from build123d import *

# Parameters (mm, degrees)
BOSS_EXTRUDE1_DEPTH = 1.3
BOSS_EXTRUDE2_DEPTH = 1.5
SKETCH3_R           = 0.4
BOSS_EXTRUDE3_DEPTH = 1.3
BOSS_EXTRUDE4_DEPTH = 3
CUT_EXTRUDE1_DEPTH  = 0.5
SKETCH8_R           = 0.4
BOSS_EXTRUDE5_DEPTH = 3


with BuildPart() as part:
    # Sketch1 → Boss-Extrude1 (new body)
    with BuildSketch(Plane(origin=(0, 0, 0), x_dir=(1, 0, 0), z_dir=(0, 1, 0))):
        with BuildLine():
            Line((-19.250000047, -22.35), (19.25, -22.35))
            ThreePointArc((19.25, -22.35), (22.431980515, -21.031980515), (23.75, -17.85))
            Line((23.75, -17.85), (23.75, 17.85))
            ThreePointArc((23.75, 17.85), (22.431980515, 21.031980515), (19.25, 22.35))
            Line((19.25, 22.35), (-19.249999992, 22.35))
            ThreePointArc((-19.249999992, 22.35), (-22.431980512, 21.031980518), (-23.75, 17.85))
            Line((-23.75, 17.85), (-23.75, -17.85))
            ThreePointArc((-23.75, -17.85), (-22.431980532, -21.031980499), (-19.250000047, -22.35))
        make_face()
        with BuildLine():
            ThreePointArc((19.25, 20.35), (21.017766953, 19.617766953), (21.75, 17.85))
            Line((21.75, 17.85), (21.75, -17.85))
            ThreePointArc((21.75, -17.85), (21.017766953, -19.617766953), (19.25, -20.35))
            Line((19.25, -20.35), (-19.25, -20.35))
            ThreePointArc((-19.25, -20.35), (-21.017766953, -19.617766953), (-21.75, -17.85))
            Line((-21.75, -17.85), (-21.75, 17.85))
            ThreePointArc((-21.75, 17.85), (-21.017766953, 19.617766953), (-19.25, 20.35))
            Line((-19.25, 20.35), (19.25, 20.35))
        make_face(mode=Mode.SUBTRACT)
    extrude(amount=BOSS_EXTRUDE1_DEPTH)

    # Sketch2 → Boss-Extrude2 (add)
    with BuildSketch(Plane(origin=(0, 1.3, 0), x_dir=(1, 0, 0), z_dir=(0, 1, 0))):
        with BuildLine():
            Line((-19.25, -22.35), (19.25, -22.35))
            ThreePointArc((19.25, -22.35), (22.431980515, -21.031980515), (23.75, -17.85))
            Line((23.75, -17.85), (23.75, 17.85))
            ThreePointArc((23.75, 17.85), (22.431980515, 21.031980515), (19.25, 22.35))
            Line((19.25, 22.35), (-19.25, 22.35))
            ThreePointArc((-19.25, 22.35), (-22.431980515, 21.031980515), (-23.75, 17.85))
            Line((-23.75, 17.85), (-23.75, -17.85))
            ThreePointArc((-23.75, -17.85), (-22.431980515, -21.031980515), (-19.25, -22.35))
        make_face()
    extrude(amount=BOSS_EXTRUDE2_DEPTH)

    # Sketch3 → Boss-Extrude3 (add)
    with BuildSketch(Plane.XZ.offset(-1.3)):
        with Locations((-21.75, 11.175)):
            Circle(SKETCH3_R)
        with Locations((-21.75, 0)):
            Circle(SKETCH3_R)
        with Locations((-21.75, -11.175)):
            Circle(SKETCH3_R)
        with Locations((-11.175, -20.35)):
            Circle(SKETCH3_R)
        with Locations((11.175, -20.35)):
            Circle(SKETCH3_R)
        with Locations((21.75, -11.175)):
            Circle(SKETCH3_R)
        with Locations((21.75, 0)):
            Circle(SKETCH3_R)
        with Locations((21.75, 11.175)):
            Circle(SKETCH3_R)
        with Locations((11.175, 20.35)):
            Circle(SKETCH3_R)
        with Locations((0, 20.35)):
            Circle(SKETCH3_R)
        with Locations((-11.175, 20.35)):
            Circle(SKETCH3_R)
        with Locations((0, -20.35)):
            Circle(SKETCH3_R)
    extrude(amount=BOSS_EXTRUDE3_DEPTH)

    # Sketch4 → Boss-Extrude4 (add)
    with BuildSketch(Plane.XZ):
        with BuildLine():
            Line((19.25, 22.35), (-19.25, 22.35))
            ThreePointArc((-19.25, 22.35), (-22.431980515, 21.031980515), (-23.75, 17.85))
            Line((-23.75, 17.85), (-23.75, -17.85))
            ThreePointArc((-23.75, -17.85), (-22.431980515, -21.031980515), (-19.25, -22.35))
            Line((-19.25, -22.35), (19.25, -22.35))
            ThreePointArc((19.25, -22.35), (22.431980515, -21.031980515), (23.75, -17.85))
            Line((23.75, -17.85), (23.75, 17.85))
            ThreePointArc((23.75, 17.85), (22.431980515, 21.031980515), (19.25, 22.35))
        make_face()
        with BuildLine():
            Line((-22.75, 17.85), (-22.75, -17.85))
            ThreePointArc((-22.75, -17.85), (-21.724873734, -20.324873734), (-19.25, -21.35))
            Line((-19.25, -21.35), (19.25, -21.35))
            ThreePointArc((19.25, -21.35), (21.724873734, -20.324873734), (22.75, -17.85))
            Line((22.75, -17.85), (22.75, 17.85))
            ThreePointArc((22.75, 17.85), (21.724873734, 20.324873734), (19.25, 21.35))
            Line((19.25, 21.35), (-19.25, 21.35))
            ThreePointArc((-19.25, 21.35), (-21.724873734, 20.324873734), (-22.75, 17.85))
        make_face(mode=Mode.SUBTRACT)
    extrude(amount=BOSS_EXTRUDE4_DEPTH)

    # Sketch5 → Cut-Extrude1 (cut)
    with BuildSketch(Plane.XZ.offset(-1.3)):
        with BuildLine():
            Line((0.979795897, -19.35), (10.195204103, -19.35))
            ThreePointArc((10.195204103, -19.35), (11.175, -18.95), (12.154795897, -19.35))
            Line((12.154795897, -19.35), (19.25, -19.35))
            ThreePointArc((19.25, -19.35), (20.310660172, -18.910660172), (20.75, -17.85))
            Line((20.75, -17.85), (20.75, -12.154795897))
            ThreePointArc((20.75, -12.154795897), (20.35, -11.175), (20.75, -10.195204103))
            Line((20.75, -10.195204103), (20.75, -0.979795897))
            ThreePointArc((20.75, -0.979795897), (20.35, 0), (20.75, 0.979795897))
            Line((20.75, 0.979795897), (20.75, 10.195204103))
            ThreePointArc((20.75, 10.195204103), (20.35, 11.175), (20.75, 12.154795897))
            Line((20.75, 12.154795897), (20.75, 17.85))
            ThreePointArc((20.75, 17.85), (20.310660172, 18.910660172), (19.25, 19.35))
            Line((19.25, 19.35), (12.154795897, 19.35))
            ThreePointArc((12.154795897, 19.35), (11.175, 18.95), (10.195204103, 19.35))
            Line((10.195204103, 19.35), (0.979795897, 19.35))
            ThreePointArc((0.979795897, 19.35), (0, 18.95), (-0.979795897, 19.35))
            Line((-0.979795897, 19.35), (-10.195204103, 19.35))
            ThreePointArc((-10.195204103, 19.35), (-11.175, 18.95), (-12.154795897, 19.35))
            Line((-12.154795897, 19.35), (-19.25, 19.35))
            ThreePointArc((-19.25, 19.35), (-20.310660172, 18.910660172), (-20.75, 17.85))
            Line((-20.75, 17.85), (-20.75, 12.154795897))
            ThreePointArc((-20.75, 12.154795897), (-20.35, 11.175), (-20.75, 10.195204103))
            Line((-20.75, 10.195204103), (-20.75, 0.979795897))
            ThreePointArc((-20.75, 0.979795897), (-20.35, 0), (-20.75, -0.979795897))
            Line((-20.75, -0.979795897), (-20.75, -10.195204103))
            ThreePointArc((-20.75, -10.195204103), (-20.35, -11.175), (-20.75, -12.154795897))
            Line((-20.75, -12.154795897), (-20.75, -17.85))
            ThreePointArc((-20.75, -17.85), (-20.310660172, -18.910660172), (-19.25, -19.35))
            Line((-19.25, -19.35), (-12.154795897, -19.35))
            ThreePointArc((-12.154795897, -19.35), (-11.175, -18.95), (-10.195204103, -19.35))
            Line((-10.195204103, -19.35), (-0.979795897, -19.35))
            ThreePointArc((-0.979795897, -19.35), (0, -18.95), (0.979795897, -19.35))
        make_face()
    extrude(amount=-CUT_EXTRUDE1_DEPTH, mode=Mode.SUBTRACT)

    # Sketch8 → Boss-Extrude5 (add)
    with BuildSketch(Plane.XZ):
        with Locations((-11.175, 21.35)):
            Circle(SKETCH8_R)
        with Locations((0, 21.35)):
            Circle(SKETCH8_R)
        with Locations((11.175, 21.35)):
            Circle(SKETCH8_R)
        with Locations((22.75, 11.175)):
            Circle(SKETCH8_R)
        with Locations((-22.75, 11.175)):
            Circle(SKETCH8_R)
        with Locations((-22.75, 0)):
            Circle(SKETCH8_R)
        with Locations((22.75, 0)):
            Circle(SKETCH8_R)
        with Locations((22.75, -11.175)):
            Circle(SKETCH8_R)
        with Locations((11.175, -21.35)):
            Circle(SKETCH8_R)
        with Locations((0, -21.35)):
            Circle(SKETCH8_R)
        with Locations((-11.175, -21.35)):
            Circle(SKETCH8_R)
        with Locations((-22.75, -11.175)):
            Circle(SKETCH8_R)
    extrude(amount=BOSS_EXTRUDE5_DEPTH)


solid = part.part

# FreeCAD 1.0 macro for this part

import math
import FreeCAD as App
import Part
import Sketcher

V = App.Vector
Q = App.Units.Quantity

doc = App.newDocument("Part")
params = doc.addObject("Spreadsheet::Sheet", "Params")
for row, (alias, value) in enumerate([
    ("sketch1_radius", "4.5 mm"),
    ("sketch1_radius2", "2.5 mm"),
    ("sketch1_width", "38.5 mm"),
    ("sketch1_height", "35.7 mm"),
    ("pad1_length", "1.3 mm"),
    ("sketch2_radius", "4.5 mm"),
    ("sketch2_width", "38.5 mm"),
    ("sketch2_height", "35.7 mm"),
    ("pad2_length", "1.5 mm"),
    ("sketch3_diameter", "0.8 mm"),
    ("pad3_length", "1.3 mm"),
    ("sketch4_radius", "4.5 mm"),
    ("sketch4_radius2", "3.5 mm"),
    ("sketch4_width", "38.5 mm"),
    ("sketch4_height", "35.7 mm"),
    ("pad4_length", "3 mm"),
    ("sketch5_radius", "1.4 mm"),
    ("sketch5_radius2", "1.5 mm"),
    ("pocket1_length", "0.5 mm"),
    ("sketch6_diameter", "0.8 mm"),
    ("pad5_length", "3 mm"),
], start=1):
    params.set(f"A{row}", alias)
    params.set(f"B{row}", "=" + value)
    params.setAlias(f"B{row}", alias)

body = doc.addObject("PartDesign::Body", "Body")

# Sketch on XZ plane
sketch1 = body.newObject("Sketcher::SketchObject", "Sketch")
sketch1.AttachmentSupport = (doc.getObject("XZ_Plane"), [""])
sketch1.MapMode = "FlatFace"
sketch1.addGeometry(Part.LineSegment(V(-19.25, 22.35, 0), V(19.25, 22.35, 0)), False)
sketch1.addGeometry(Part.ArcOfCircle(Part.Circle(V(19.25, 17.85, 0), V(0, 0, 1), 4.5), math.radians(0), math.radians(90)), False)
sketch1.addGeometry(Part.LineSegment(V(23.75, 17.85, 0), V(23.75, -17.85, 0)), False)
sketch1.addGeometry(Part.ArcOfCircle(Part.Circle(V(19.25, -17.85, 0), V(0, 0, 1), 4.5), math.radians(-90), math.radians(0)), False)
sketch1.addGeometry(Part.LineSegment(V(19.25, -22.35, 0), V(-19.25, -22.35, 0)), False)
sketch1.addGeometry(Part.ArcOfCircle(Part.Circle(V(-19.25, -17.85, 0), V(0, 0, 1), 4.5), math.radians(-180), math.radians(-90)), False)
sketch1.addGeometry(Part.LineSegment(V(-23.75, -17.85, 0), V(-23.75, 17.85, 0)), False)
sketch1.addGeometry(Part.ArcOfCircle(Part.Circle(V(-19.25, 17.85, 0), V(0, 0, 1), 4.5), math.radians(90.000001), math.radians(180)), False)
sketch1.addGeometry(Part.LineSegment(V(-19.25, -20.35, 0), V(19.25, -20.35, 0)), False)
sketch1.addGeometry(Part.ArcOfCircle(Part.Circle(V(19.25, -17.85, 0), V(0, 0, 1), 2.5), math.radians(-90), math.radians(0)), False)
sketch1.addGeometry(Part.LineSegment(V(21.75, -17.85, 0), V(21.75, 17.85, 0)), False)
sketch1.addGeometry(Part.ArcOfCircle(Part.Circle(V(19.25, 17.85, 0), V(0, 0, 1), 2.5), math.radians(0), math.radians(90)), False)
sketch1.addGeometry(Part.LineSegment(V(19.25, 20.35, 0), V(-19.25, 20.35, 0)), False)
sketch1.addGeometry(Part.ArcOfCircle(Part.Circle(V(-19.25, 17.85, 0), V(0, 0, 1), 2.5), math.radians(90), math.radians(180)), False)
sketch1.addGeometry(Part.LineSegment(V(-21.75, 17.85, 0), V(-21.75, -17.85, 0)), False)
sketch1.addGeometry(Part.ArcOfCircle(Part.Circle(V(-19.25, -17.85, 0), V(0, 0, 1), 2.5), math.radians(180), math.radians(270)), False)
sketch1.addConstraint(Sketcher.Constraint("Tangent", 0, 2, 1, 2))
sketch1.addConstraint(Sketcher.Constraint("Tangent", 1, 1, 2, 1))
sketch1.addConstraint(Sketcher.Constraint("Tangent", 2, 2, 3, 2))
sketch1.addConstraint(Sketcher.Constraint("Tangent", 3, 1, 4, 1))
sketch1.addConstraint(Sketcher.Constraint("Tangent", 4, 2, 5, 2))
sketch1.addConstraint(Sketcher.Constraint("Tangent", 5, 1, 6, 1))
sketch1.addConstraint(Sketcher.Constraint("Tangent", 6, 2, 7, 2))
sketch1.addConstraint(Sketcher.Constraint("Tangent", 7, 1, 0, 1))
sketch1.addConstraint(Sketcher.Constraint("Tangent", 8, 2, 9, 1))
sketch1.addConstraint(Sketcher.Constraint("Tangent", 9, 2, 10, 1))
sketch1.addConstraint(Sketcher.Constraint("Tangent", 10, 2, 11, 1))
sketch1.addConstraint(Sketcher.Constraint("Tangent", 11, 2, 12, 1))
sketch1.addConstraint(Sketcher.Constraint("Tangent", 12, 2, 13, 1))
sketch1.addConstraint(Sketcher.Constraint("Tangent", 13, 2, 14, 1))
sketch1.addConstraint(Sketcher.Constraint("Tangent", 14, 2, 15, 1))
sketch1.addConstraint(Sketcher.Constraint("Tangent", 15, 2, 8, 1))
sketch1.addConstraint(Sketcher.Constraint("Horizontal", 0))
sketch1.addConstraint(Sketcher.Constraint("Vertical", 2))
sketch1.addConstraint(Sketcher.Constraint("Horizontal", 4))
sketch1.addConstraint(Sketcher.Constraint("Vertical", 6))
sketch1.addConstraint(Sketcher.Constraint("Horizontal", 8))
sketch1.addConstraint(Sketcher.Constraint("Vertical", 10))
sketch1.addConstraint(Sketcher.Constraint("Horizontal", 12))
sketch1.addConstraint(Sketcher.Constraint("Vertical", 14))
sketch1.addConstraint(Sketcher.Constraint("Coincident", 9, 3, 3, 3))
sketch1.addConstraint(Sketcher.Constraint("Coincident", 11, 3, 1, 3))
sketch1.addConstraint(Sketcher.Constraint("Coincident", 13, 3, 7, 3))
sketch1.addConstraint(Sketcher.Constraint("Equal", 1, 3))
sketch1.addConstraint(Sketcher.Constraint("Equal", 3, 5))
sketch1.addConstraint(Sketcher.Constraint("Equal", 5, 7))
sketch1.addConstraint(Sketcher.Constraint("Equal", 13, 15))
sketch1.addConstraint(Sketcher.Constraint("Symmetric", 1, 3, 5, 3, -1, 1))
sketch1.addConstraint(Sketcher.Constraint("Radius", 1, Q("4.5 mm")))
sketch1.addConstraint(Sketcher.Constraint("Radius", 9, Q("2.5 mm")))
sketch1.addConstraint(Sketcher.Constraint("DistanceX", 0, 1, 0, 2, Q("38.5 mm")))
sketch1.addConstraint(Sketcher.Constraint("DistanceY", 2, 2, 2, 1, Q("35.7 mm")))
sketch1.setExpression("Constraints[32]", "Params.sketch1_radius")
sketch1.setExpression("Constraints[33]", "Params.sketch1_radius2")
sketch1.setExpression("Constraints[34]", "Params.sketch1_width")
sketch1.setExpression("Constraints[35]", "Params.sketch1_height")
pad1 = body.newObject("PartDesign::Pad", "Pad")
pad1.Profile = sketch1
pad1.setExpression("Length", "Params.pad1_length")
pad1.Reversed = True

# Sketch on XZ plane
sketch2 = body.newObject("Sketcher::SketchObject", "Sketch001")
sketch2.AttachmentSupport = (doc.getObject("XZ_Plane"), [""])
sketch2.MapMode = "FlatFace"
sketch2.AttachmentOffset = App.Placement(V(0, 0, -1.3), App.Rotation())
sketch2.addGeometry(Part.LineSegment(V(-19.25, 22.35, 0), V(19.25, 22.35, 0)), False)
sketch2.addGeometry(Part.ArcOfCircle(Part.Circle(V(19.25, 17.85, 0), V(0, 0, 1), 4.5), math.radians(0), math.radians(90)), False)
sketch2.addGeometry(Part.LineSegment(V(23.75, 17.85, 0), V(23.75, -17.85, 0)), False)
sketch2.addGeometry(Part.ArcOfCircle(Part.Circle(V(19.25, -17.85, 0), V(0, 0, 1), 4.5), math.radians(-90), math.radians(0)), False)
sketch2.addGeometry(Part.LineSegment(V(19.25, -22.35, 0), V(-19.25, -22.35, 0)), False)
sketch2.addGeometry(Part.ArcOfCircle(Part.Circle(V(-19.25, -17.85, 0), V(0, 0, 1), 4.5), math.radians(-180), math.radians(-90)), False)
sketch2.addGeometry(Part.LineSegment(V(-23.75, -17.85, 0), V(-23.75, 17.85, 0)), False)
sketch2.addGeometry(Part.ArcOfCircle(Part.Circle(V(-19.25, 17.85, 0), V(0, 0, 1), 4.5), math.radians(90), math.radians(180)), False)
sketch2.addConstraint(Sketcher.Constraint("Tangent", 0, 2, 1, 2))
sketch2.addConstraint(Sketcher.Constraint("Tangent", 1, 1, 2, 1))
sketch2.addConstraint(Sketcher.Constraint("Tangent", 2, 2, 3, 2))
sketch2.addConstraint(Sketcher.Constraint("Tangent", 3, 1, 4, 1))
sketch2.addConstraint(Sketcher.Constraint("Tangent", 4, 2, 5, 2))
sketch2.addConstraint(Sketcher.Constraint("Tangent", 5, 1, 6, 1))
sketch2.addConstraint(Sketcher.Constraint("Tangent", 6, 2, 7, 2))
sketch2.addConstraint(Sketcher.Constraint("Tangent", 7, 1, 0, 1))
sketch2.addConstraint(Sketcher.Constraint("Horizontal", 0))
sketch2.addConstraint(Sketcher.Constraint("Vertical", 2))
sketch2.addConstraint(Sketcher.Constraint("Horizontal", 4))
sketch2.addConstraint(Sketcher.Constraint("Vertical", 6))
sketch2.addConstraint(Sketcher.Constraint("Equal", 1, 3))
sketch2.addConstraint(Sketcher.Constraint("Equal", 3, 5))
sketch2.addConstraint(Sketcher.Constraint("Equal", 5, 7))
sketch2.addConstraint(Sketcher.Constraint("Symmetric", 1, 3, 5, 3, -1, 1))
sketch2.addConstraint(Sketcher.Constraint("Radius", 1, Q("4.5 mm")))
sketch2.addConstraint(Sketcher.Constraint("DistanceX", 0, 1, 0, 2, Q("38.5 mm")))
sketch2.addConstraint(Sketcher.Constraint("DistanceY", 2, 2, 2, 1, Q("35.7 mm")))
sketch2.setExpression("Constraints[16]", "Params.sketch2_radius")
sketch2.setExpression("Constraints[17]", "Params.sketch2_width")
sketch2.setExpression("Constraints[18]", "Params.sketch2_height")
pad2 = body.newObject("PartDesign::Pad", "Pad001")
pad2.Profile = sketch2
pad2.setExpression("Length", "Params.pad2_length")
pad2.Reversed = True

# Sketch on XZ plane
sketch3 = body.newObject("Sketcher::SketchObject", "Sketch002")
sketch3.AttachmentSupport = (doc.getObject("XZ_Plane"), [""])
sketch3.MapMode = "FlatFace"
sketch3.AttachmentOffset = App.Placement(V(0, 0, -1.3), App.Rotation())
sketch3.addGeometry(Part.Circle(V(-21.75, 11.175, 0), V(0, 0, 1), 0.4), False)
sketch3.addGeometry(Part.Circle(V(-21.75, 0, 0), V(0, 0, 1), 0.4), False)
sketch3.addGeometry(Part.Circle(V(-21.75, -11.175, 0), V(0, 0, 1), 0.4), False)
sketch3.addGeometry(Part.Circle(V(-11.175, -20.35, 0), V(0, 0, 1), 0.4), False)
sketch3.addGeometry(Part.Circle(V(11.175, -20.35, 0), V(0, 0, 1), 0.4), False)
sketch3.addGeometry(Part.Circle(V(21.75, -11.175, 0), V(0, 0, 1), 0.4), False)
sketch3.addGeometry(Part.Circle(V(21.75, 0, 0), V(0, 0, 1), 0.4), False)
sketch3.addGeometry(Part.Circle(V(21.75, 11.175, 0), V(0, 0, 1), 0.4), False)
sketch3.addGeometry(Part.Circle(V(11.175, 20.35, 0), V(0, 0, 1), 0.4), False)
sketch3.addGeometry(Part.Circle(V(0, 20.35, 0), V(0, 0, 1), 0.4), False)
sketch3.addGeometry(Part.Circle(V(-11.175, 20.35, 0), V(0, 0, 1), 0.4), False)
sketch3.addGeometry(Part.Circle(V(0, -20.35, 0), V(0, 0, 1), 0.4), False)
sketch3.addConstraint(Sketcher.Constraint("Equal", 0, 1))
sketch3.addConstraint(Sketcher.Constraint("Equal", 1, 2))
sketch3.addConstraint(Sketcher.Constraint("Equal", 2, 3))
sketch3.addConstraint(Sketcher.Constraint("Equal", 3, 4))
sketch3.addConstraint(Sketcher.Constraint("Equal", 4, 5))
sketch3.addConstraint(Sketcher.Constraint("Equal", 5, 6))
sketch3.addConstraint(Sketcher.Constraint("Equal", 6, 7))
sketch3.addConstraint(Sketcher.Constraint("Equal", 7, 8))
sketch3.addConstraint(Sketcher.Constraint("Equal", 8, 9))
sketch3.addConstraint(Sketcher.Constraint("Equal", 9, 10))
sketch3.addConstraint(Sketcher.Constraint("Equal", 10, 11))
sketch3.addConstraint(Sketcher.Constraint("Symmetric", 0, 3, 5, 3, -1, 1))
sketch3.addConstraint(Sketcher.Constraint("Symmetric", 1, 3, 6, 3, -1, 1))
sketch3.addConstraint(Sketcher.Constraint("Symmetric", 2, 3, 7, 3, -1, 1))
sketch3.addConstraint(Sketcher.Constraint("Symmetric", 3, 3, 8, 3, -1, 1))
sketch3.addConstraint(Sketcher.Constraint("Symmetric", 4, 3, 10, 3, -1, 1))
sketch3.addConstraint(Sketcher.Constraint("Symmetric", 9, 3, 11, 3, -1, 1))
sketch3.addConstraint(Sketcher.Constraint("Symmetric", 3, 3, 4, 3, -2))
sketch3.addConstraint(Sketcher.Constraint("Symmetric", 2, 3, 5, 3, -2))
sketch3.addConstraint(Sketcher.Constraint("PointOnObject", 1, 3, -1))
sketch3.addConstraint(Sketcher.Constraint("PointOnObject", 9, 3, -2))
sketch3.addConstraint(Sketcher.Constraint("Horizontal", 8, 3, 9, 3))
sketch3.addConstraint(Sketcher.Constraint("Vertical", 0, 3, 1, 3))
sketch3.addConstraint(Sketcher.Constraint("Diameter", 0, Q("0.8 mm")))
sketch3.addConstraint(Sketcher.Constraint("DistanceX", 2, 3, 5, 3, Q("43.5 mm")))
sketch3.addConstraint(Sketcher.Constraint("DistanceY", 3, 3, -1, 1, Q("20.35 mm")))
sketch3.addConstraint(Sketcher.Constraint("DistanceY", 2, 3, 0, 3, Q("22.35 mm")))
sketch3.addConstraint(Sketcher.Constraint("DistanceX", 3, 3, 4, 3, Q("22.35 mm")))
sketch3.setExpression("Constraints[23]", "Params.sketch3_diameter")
pad3 = body.newObject("PartDesign::Pad", "Pad002")
pad3.Profile = sketch3
pad3.setExpression("Length", "Params.pad3_length")

# Sketch on XZ plane
sketch4 = body.newObject("Sketcher::SketchObject", "Sketch003")
sketch4.AttachmentSupport = (doc.getObject("XZ_Plane"), [""])
sketch4.MapMode = "FlatFace"
sketch4.addGeometry(Part.LineSegment(V(19.25, 22.35, 0), V(-19.25, 22.35, 0)), False)
sketch4.addGeometry(Part.ArcOfCircle(Part.Circle(V(-19.25, 17.85, 0), V(0, 0, 1), 4.5), math.radians(90), math.radians(180)), False)
sketch4.addGeometry(Part.LineSegment(V(-23.75, 17.85, 0), V(-23.75, -17.85, 0)), False)
sketch4.addGeometry(Part.ArcOfCircle(Part.Circle(V(-19.25, -17.85, 0), V(0, 0, 1), 4.5), math.radians(-180), math.radians(-90)), False)
sketch4.addGeometry(Part.LineSegment(V(-19.25, -22.35, 0), V(19.25, -22.35, 0)), False)
sketch4.addGeometry(Part.ArcOfCircle(Part.Circle(V(19.25, -17.85, 0), V(0, 0, 1), 4.5), math.radians(-90), math.radians(0)), False)
sketch4.addGeometry(Part.LineSegment(V(23.75, -17.85, 0), V(23.75, 17.85, 0)), False)
sketch4.addGeometry(Part.ArcOfCircle(Part.Circle(V(19.25, 17.85, 0), V(0, 0, 1), 4.5), math.radians(0), math.radians(90)), False)
sketch4.addGeometry(Part.LineSegment(V(-22.75, -17.85, 0), V(-22.75, 17.85, 0)), False)
sketch4.addGeometry(Part.ArcOfCircle(Part.Circle(V(-19.25, 17.85, 0), V(0, 0, 1), 3.5), math.radians(90), math.radians(180)), False)
sketch4.addGeometry(Part.LineSegment(V(-19.25, 21.35, 0), V(19.25, 21.35, 0)), False)
sketch4.addGeometry(Part.ArcOfCircle(Part.Circle(V(19.25, 17.85, 0), V(0, 0, 1), 3.5), math.radians(0), math.radians(90)), False)
sketch4.addGeometry(Part.LineSegment(V(22.75, 17.85, 0), V(22.75, -17.85, 0)), False)
sketch4.addGeometry(Part.ArcOfCircle(Part.Circle(V(19.25, -17.85, 0), V(0, 0, 1), 3.5), math.radians(-90), math.radians(0)), False)
sketch4.addGeometry(Part.LineSegment(V(19.25, -21.35, 0), V(-19.25, -21.35, 0)), False)
sketch4.addGeometry(Part.ArcOfCircle(Part.Circle(V(-19.25, -17.85, 0), V(0, 0, 1), 3.5), math.radians(-180), math.radians(-90)), False)
sketch4.addConstraint(Sketcher.Constraint("Tangent", 0, 2, 1, 1))
sketch4.addConstraint(Sketcher.Constraint("Tangent", 1, 2, 2, 1))
sketch4.addConstraint(Sketcher.Constraint("Tangent", 2, 2, 3, 1))
sketch4.addConstraint(Sketcher.Constraint("Tangent", 3, 2, 4, 1))
sketch4.addConstraint(Sketcher.Constraint("Tangent", 4, 2, 5, 1))
sketch4.addConstraint(Sketcher.Constraint("Tangent", 5, 2, 6, 1))
sketch4.addConstraint(Sketcher.Constraint("Tangent", 6, 2, 7, 1))
sketch4.addConstraint(Sketcher.Constraint("Tangent", 7, 2, 0, 1))
sketch4.addConstraint(Sketcher.Constraint("Tangent", 8, 2, 9, 2))
sketch4.addConstraint(Sketcher.Constraint("Tangent", 9, 1, 10, 1))
sketch4.addConstraint(Sketcher.Constraint("Tangent", 10, 2, 11, 2))
sketch4.addConstraint(Sketcher.Constraint("Tangent", 11, 1, 12, 1))
sketch4.addConstraint(Sketcher.Constraint("Tangent", 12, 2, 13, 2))
sketch4.addConstraint(Sketcher.Constraint("Tangent", 13, 1, 14, 1))
sketch4.addConstraint(Sketcher.Constraint("Tangent", 14, 2, 15, 2))
sketch4.addConstraint(Sketcher.Constraint("Tangent", 15, 1, 8, 1))
sketch4.addConstraint(Sketcher.Constraint("Horizontal", 0))
sketch4.addConstraint(Sketcher.Constraint("Vertical", 2))
sketch4.addConstraint(Sketcher.Constraint("Horizontal", 4))
sketch4.addConstraint(Sketcher.Constraint("Vertical", 6))
sketch4.addConstraint(Sketcher.Constraint("Vertical", 8))
sketch4.addConstraint(Sketcher.Constraint("Horizontal", 10))
sketch4.addConstraint(Sketcher.Constraint("Vertical", 12))
sketch4.addConstraint(Sketcher.Constraint("Horizontal", 14))
sketch4.addConstraint(Sketcher.Constraint("Coincident", 9, 3, 1, 3))
sketch4.addConstraint(Sketcher.Constraint("Coincident", 11, 3, 7, 3))
sketch4.addConstraint(Sketcher.Constraint("Coincident", 13, 3, 5, 3))
sketch4.addConstraint(Sketcher.Constraint("Equal", 1, 3))
sketch4.addConstraint(Sketcher.Constraint("Equal", 3, 5))
sketch4.addConstraint(Sketcher.Constraint("Equal", 5, 7))
sketch4.addConstraint(Sketcher.Constraint("Equal", 13, 15))
sketch4.addConstraint(Sketcher.Constraint("Symmetric", 1, 3, 5, 3, -1, 1))
sketch4.addConstraint(Sketcher.Constraint("Radius", 1, Q("4.5 mm")))
sketch4.addConstraint(Sketcher.Constraint("Radius", 9, Q("3.5 mm")))
sketch4.addConstraint(Sketcher.Constraint("DistanceX", 0, 2, 0, 1, Q("38.5 mm")))
sketch4.addConstraint(Sketcher.Constraint("DistanceY", 2, 2, 2, 1, Q("35.7 mm")))
sketch4.setExpression("Constraints[32]", "Params.sketch4_radius")
sketch4.setExpression("Constraints[33]", "Params.sketch4_radius2")
sketch4.setExpression("Constraints[34]", "Params.sketch4_width")
sketch4.setExpression("Constraints[35]", "Params.sketch4_height")
pad4 = body.newObject("PartDesign::Pad", "Pad003")
pad4.Profile = sketch4
pad4.setExpression("Length", "Params.pad4_length")

# Sketch on XZ plane
sketch5 = body.newObject("Sketcher::SketchObject", "Sketch004")
sketch5.AttachmentSupport = (doc.getObject("XZ_Plane"), [""])
sketch5.MapMode = "FlatFace"
sketch5.AttachmentOffset = App.Placement(V(0, 0, -1.3), App.Rotation())
sketch5.addGeometry(Part.LineSegment(V(0.979796, -19.35, 0), V(10.195204, -19.35, 0)), False)
sketch5.addGeometry(Part.ArcOfCircle(Part.Circle(V(11.175, -20.35, 0), V(0, 0, 1), 1.4), math.radians(45.584691), math.radians(134.415309)), False)
sketch5.addGeometry(Part.LineSegment(V(12.154796, -19.35, 0), V(19.25, -19.35, 0)), False)
sketch5.addGeometry(Part.ArcOfCircle(Part.Circle(V(19.25, -17.85, 0), V(0, 0, 1), 1.5), math.radians(-90), math.radians(0)), False)
sketch5.addGeometry(Part.LineSegment(V(20.75, -17.85, 0), V(20.75, -12.154796, 0)), False)
sketch5.addGeometry(Part.ArcOfCircle(Part.Circle(V(21.75, -11.175, 0), V(0, 0, 1), 1.4), math.radians(135.584691), math.radians(224.415309)), False)
sketch5.addGeometry(Part.LineSegment(V(20.75, -10.195204, 0), V(20.75, -0.979796, 0)), False)
sketch5.addGeometry(Part.ArcOfCircle(Part.Circle(V(21.75, 0, 0), V(0, 0, 1), 1.4), math.radians(135.584691), math.radians(224.415309)), False)
sketch5.addGeometry(Part.LineSegment(V(20.75, 0.979796, 0), V(20.75, 10.195204, 0)), False)
sketch5.addGeometry(Part.ArcOfCircle(Part.Circle(V(21.75, 11.175, 0), V(0, 0, 1), 1.4), math.radians(135.584691), math.radians(224.415309)), False)
sketch5.addGeometry(Part.LineSegment(V(20.75, 12.154796, 0), V(20.75, 17.85, 0)), False)
sketch5.addGeometry(Part.ArcOfCircle(Part.Circle(V(19.25, 17.85, 0), V(0, 0, 1), 1.5), math.radians(0), math.radians(90)), False)
sketch5.addGeometry(Part.LineSegment(V(19.25, 19.35, 0), V(12.154796, 19.35, 0)), False)
sketch5.addGeometry(Part.ArcOfCircle(Part.Circle(V(11.175, 20.35, 0), V(0, 0, 1), 1.4), math.radians(-134.415309), math.radians(-45.584691)), False)
sketch5.addGeometry(Part.LineSegment(V(10.195204, 19.35, 0), V(0.979796, 19.35, 0)), False)
sketch5.addGeometry(Part.ArcOfCircle(Part.Circle(V(0, 20.35, 0), V(0, 0, 1), 1.4), math.radians(-134.415309), math.radians(-45.584691)), False)
sketch5.addGeometry(Part.LineSegment(V(-0.979796, 19.35, 0), V(-10.195204, 19.35, 0)), False)
sketch5.addGeometry(Part.ArcOfCircle(Part.Circle(V(-11.175, 20.35, 0), V(0, 0, 1), 1.4), math.radians(-134.415309), math.radians(-45.584691)), False)
sketch5.addGeometry(Part.LineSegment(V(-12.154796, 19.35, 0), V(-19.25, 19.35, 0)), False)
sketch5.addGeometry(Part.ArcOfCircle(Part.Circle(V(-19.25, 17.85, 0), V(0, 0, 1), 1.5), math.radians(90), math.radians(180)), False)
sketch5.addGeometry(Part.LineSegment(V(-20.75, 17.85, 0), V(-20.75, 12.154796, 0)), False)
sketch5.addGeometry(Part.ArcOfCircle(Part.Circle(V(-21.75, 11.175, 0), V(0, 0, 1), 1.4), math.radians(-44.415309), math.radians(44.415309)), False)
sketch5.addGeometry(Part.LineSegment(V(-20.75, 10.195204, 0), V(-20.75, 0.979796, 0)), False)
sketch5.addGeometry(Part.ArcOfCircle(Part.Circle(V(-21.75, 0, 0), V(0, 0, 1), 1.4), math.radians(-44.415309), math.radians(44.415309)), False)
sketch5.addGeometry(Part.LineSegment(V(-20.75, -0.979796, 0), V(-20.75, -10.195204, 0)), False)
sketch5.addGeometry(Part.ArcOfCircle(Part.Circle(V(-21.75, -11.175, 0), V(0, 0, 1), 1.4), math.radians(-44.415309), math.radians(44.415309)), False)
sketch5.addGeometry(Part.LineSegment(V(-20.75, -12.154796, 0), V(-20.75, -17.85, 0)), False)
sketch5.addGeometry(Part.ArcOfCircle(Part.Circle(V(-19.25, -17.85, 0), V(0, 0, 1), 1.5), math.radians(180), math.radians(270)), False)
sketch5.addGeometry(Part.LineSegment(V(-19.25, -19.35, 0), V(-12.154796, -19.35, 0)), False)
sketch5.addGeometry(Part.ArcOfCircle(Part.Circle(V(-11.175, -20.35, 0), V(0, 0, 1), 1.4), math.radians(45.584691), math.radians(134.415309)), False)
sketch5.addGeometry(Part.LineSegment(V(-10.195204, -19.35, 0), V(-0.979796, -19.35, 0)), False)
sketch5.addGeometry(Part.ArcOfCircle(Part.Circle(V(0, -20.35, 0), V(0, 0, 1), 1.4), math.radians(45.584691), math.radians(134.415309)), False)
sketch5.addConstraint(Sketcher.Constraint("Coincident", 0, 2, 1, 2))
sketch5.addConstraint(Sketcher.Constraint("Coincident", 1, 1, 2, 1))
sketch5.addConstraint(Sketcher.Constraint("Tangent", 2, 2, 3, 1))
sketch5.addConstraint(Sketcher.Constraint("Tangent", 3, 2, 4, 1))
sketch5.addConstraint(Sketcher.Constraint("Coincident", 4, 2, 5, 2))
sketch5.addConstraint(Sketcher.Constraint("Coincident", 5, 1, 6, 1))
sketch5.addConstraint(Sketcher.Constraint("Coincident", 6, 2, 7, 2))
sketch5.addConstraint(Sketcher.Constraint("Coincident", 7, 1, 8, 1))
sketch5.addConstraint(Sketcher.Constraint("Coincident", 8, 2, 9, 2))
sketch5.addConstraint(Sketcher.Constraint("Coincident", 9, 1, 10, 1))
sketch5.addConstraint(Sketcher.Constraint("Tangent", 10, 2, 11, 1))
sketch5.addConstraint(Sketcher.Constraint("Tangent", 11, 2, 12, 1))
sketch5.addConstraint(Sketcher.Constraint("Coincident", 12, 2, 13, 2))
sketch5.addConstraint(Sketcher.Constraint("Coincident", 13, 1, 14, 1))
sketch5.addConstraint(Sketcher.Constraint("Coincident", 14, 2, 15, 2))
sketch5.addConstraint(Sketcher.Constraint("Coincident", 15, 1, 16, 1))
sketch5.addConstraint(Sketcher.Constraint("Coincident", 16, 2, 17, 2))
sketch5.addConstraint(Sketcher.Constraint("Coincident", 17, 1, 18, 1))
sketch5.addConstraint(Sketcher.Constraint("Tangent", 18, 2, 19, 1))
sketch5.addConstraint(Sketcher.Constraint("Tangent", 19, 2, 20, 1))
sketch5.addConstraint(Sketcher.Constraint("Coincident", 20, 2, 21, 2))
sketch5.addConstraint(Sketcher.Constraint("Coincident", 21, 1, 22, 1))
sketch5.addConstraint(Sketcher.Constraint("Coincident", 22, 2, 23, 2))
sketch5.addConstraint(Sketcher.Constraint("Coincident", 23, 1, 24, 1))
sketch5.addConstraint(Sketcher.Constraint("Coincident", 24, 2, 25, 2))
sketch5.addConstraint(Sketcher.Constraint("Coincident", 25, 1, 26, 1))
sketch5.addConstraint(Sketcher.Constraint("Tangent", 26, 2, 27, 1))
sketch5.addConstraint(Sketcher.Constraint("Tangent", 27, 2, 28, 1))
sketch5.addConstraint(Sketcher.Constraint("Coincident", 28, 2, 29, 2))
sketch5.addConstraint(Sketcher.Constraint("Coincident", 29, 1, 30, 1))
sketch5.addConstraint(Sketcher.Constraint("Coincident", 30, 2, 31, 2))
sketch5.addConstraint(Sketcher.Constraint("Coincident", 31, 1, 0, 1))
sketch5.addConstraint(Sketcher.Constraint("Horizontal", 0))
sketch5.addConstraint(Sketcher.Constraint("Horizontal", 2))
sketch5.addConstraint(Sketcher.Constraint("Vertical", 4))
sketch5.addConstraint(Sketcher.Constraint("Vertical", 6))
sketch5.addConstraint(Sketcher.Constraint("Vertical", 8))
sketch5.addConstraint(Sketcher.Constraint("Vertical", 10))
sketch5.addConstraint(Sketcher.Constraint("Horizontal", 12))
sketch5.addConstraint(Sketcher.Constraint("Horizontal", 14))
sketch5.addConstraint(Sketcher.Constraint("Horizontal", 16))
sketch5.addConstraint(Sketcher.Constraint("Horizontal", 18))
sketch5.addConstraint(Sketcher.Constraint("Vertical", 20))
sketch5.addConstraint(Sketcher.Constraint("Vertical", 22))
sketch5.addConstraint(Sketcher.Constraint("Vertical", 24))
sketch5.addConstraint(Sketcher.Constraint("Vertical", 26))
sketch5.addConstraint(Sketcher.Constraint("Horizontal", 28))
sketch5.addConstraint(Sketcher.Constraint("Horizontal", 30))
sketch5.addConstraint(Sketcher.Constraint("Equal", 1, 5))
sketch5.addConstraint(Sketcher.Constraint("Equal", 5, 7))
sketch5.addConstraint(Sketcher.Constraint("Equal", 7, 9))
sketch5.addConstraint(Sketcher.Constraint("Equal", 3, 11))
sketch5.addConstraint(Sketcher.Constraint("Equal", 9, 13))
sketch5.addConstraint(Sketcher.Constraint("Equal", 13, 15))
sketch5.addConstraint(Sketcher.Constraint("Equal", 15, 17))
sketch5.addConstraint(Sketcher.Constraint("Equal", 11, 19))
sketch5.addConstraint(Sketcher.Constraint("Equal", 17, 21))
sketch5.addConstraint(Sketcher.Constraint("Equal", 21, 23))
sketch5.addConstraint(Sketcher.Constraint("Equal", 23, 25))
sketch5.addConstraint(Sketcher.Constraint("Equal", 19, 27))
sketch5.addConstraint(Sketcher.Constraint("Equal", 25, 29))
sketch5.addConstraint(Sketcher.Constraint("Equal", 29, 31))
sketch5.addConstraint(Sketcher.Constraint("Symmetric", 1, 3, 17, 3, -1, 1))
sketch5.addConstraint(Sketcher.Constraint("Symmetric", 3, 3, 19, 3, -1, 1))
sketch5.addConstraint(Sketcher.Constraint("Symmetric", 5, 3, 21, 3, -1, 1))
sketch5.addConstraint(Sketcher.Constraint("Symmetric", 7, 3, 23, 3, -1, 1))
sketch5.addConstraint(Sketcher.Constraint("Symmetric", 9, 3, 25, 3, -1, 1))
sketch5.addConstraint(Sketcher.Constraint("Symmetric", 11, 3, 27, 3, -1, 1))
sketch5.addConstraint(Sketcher.Constraint("Symmetric", 13, 3, 29, 3, -1, 1))
sketch5.addConstraint(Sketcher.Constraint("Symmetric", 15, 3, 31, 3, -1, 1))
sketch5.addConstraint(Sketcher.Constraint("Symmetric", 13, 3, 17, 3, -2))
sketch5.addConstraint(Sketcher.Constraint("Symmetric", 11, 3, 19, 3, -2))
sketch5.addConstraint(Sketcher.Constraint("Symmetric", 9, 3, 21, 3, -2))
sketch5.addConstraint(Sketcher.Constraint("Symmetric", 14, 2, 15, 1, -2))
sketch5.addConstraint(Sketcher.Constraint("Symmetric", 7, 1, 22, 2, -2))
sketch5.addConstraint(Sketcher.Constraint("Horizontal", 13, 3, 15, 3))
sketch5.addConstraint(Sketcher.Constraint("Horizontal", 0, 2, 1, 1))
sketch5.addConstraint(Sketcher.Constraint("Horizontal", 12, 2, 13, 1))
sketch5.addConstraint(Sketcher.Constraint("Horizontal", 6, 2, 23, 1))
sketch5.addConstraint(Sketcher.Constraint("Horizontal", 28, 2, 29, 1))
sketch5.addConstraint(Sketcher.Constraint("Vertical", 5, 3, 7, 3))
sketch5.addConstraint(Sketcher.Constraint("Vertical", 4, 2, 5, 1))
sketch5.addConstraint(Sketcher.Constraint("Vertical", 6, 2, 7, 1))
sketch5.addConstraint(Sketcher.Constraint("Equal", 30, 6))
sketch5.addConstraint(Sketcher.Constraint("Radius", 1, Q("1.4 mm")))
sketch5.addConstraint(Sketcher.Constraint("Radius", 3, Q("1.5 mm")))
sketch5.addConstraint(Sketcher.Constraint("DistanceX", 19, 3, 9, 3, Q("41 mm")))
sketch5.addConstraint(Sketcher.Constraint("DistanceY", 1, 3, 0, 2, Q("1 mm")))
sketch5.addConstraint(Sketcher.Constraint("DistanceX", 3, 2, 5, 3, Q("1 mm")))
sketch5.addConstraint(Sketcher.Constraint("DistanceY", 3, 3, 11, 3, Q("35.7 mm")))
sketch5.addConstraint(Sketcher.Constraint("DistanceY", 5, 3, 9, 3, Q("22.35 mm")))
sketch5.setExpression("Constraints[84]", "Params.sketch5_radius")
sketch5.setExpression("Constraints[85]", "Params.sketch5_radius2")
pocket1 = body.newObject("PartDesign::Pocket", "Pocket")
pocket1.Profile = sketch5
pocket1.setExpression("Length", "Params.pocket1_length")

# Sketch on XZ plane
sketch6 = body.newObject("Sketcher::SketchObject", "Sketch005")
sketch6.AttachmentSupport = (doc.getObject("XZ_Plane"), [""])
sketch6.MapMode = "FlatFace"
sketch6.addGeometry(Part.Circle(V(-11.175, 21.35, 0), V(0, 0, 1), 0.4), False)
sketch6.addGeometry(Part.Circle(V(0, 21.35, 0), V(0, 0, 1), 0.4), False)
sketch6.addGeometry(Part.Circle(V(11.175, 21.35, 0), V(0, 0, 1), 0.4), False)
sketch6.addGeometry(Part.Circle(V(22.75, 11.175, 0), V(0, 0, 1), 0.4), False)
sketch6.addGeometry(Part.Circle(V(-22.75, 11.175, 0), V(0, 0, 1), 0.4), False)
sketch6.addGeometry(Part.Circle(V(-22.75, 0, 0), V(0, 0, 1), 0.4), False)
sketch6.addGeometry(Part.Circle(V(22.75, 0, 0), V(0, 0, 1), 0.4), False)
sketch6.addGeometry(Part.Circle(V(22.75, -11.175, 0), V(0, 0, 1), 0.4), False)
sketch6.addGeometry(Part.Circle(V(11.175, -21.35, 0), V(0, 0, 1), 0.4), False)
sketch6.addGeometry(Part.Circle(V(0, -21.35, 0), V(0, 0, 1), 0.4), False)
sketch6.addGeometry(Part.Circle(V(-11.175, -21.35, 0), V(0, 0, 1), 0.4), False)
sketch6.addGeometry(Part.Circle(V(-22.75, -11.175, 0), V(0, 0, 1), 0.4), False)
sketch6.addConstraint(Sketcher.Constraint("Equal", 0, 1))
sketch6.addConstraint(Sketcher.Constraint("Equal", 1, 2))
sketch6.addConstraint(Sketcher.Constraint("Equal", 2, 3))
sketch6.addConstraint(Sketcher.Constraint("Equal", 3, 4))
sketch6.addConstraint(Sketcher.Constraint("Equal", 4, 5))
sketch6.addConstraint(Sketcher.Constraint("Equal", 5, 6))
sketch6.addConstraint(Sketcher.Constraint("Equal", 6, 7))
sketch6.addConstraint(Sketcher.Constraint("Equal", 7, 8))
sketch6.addConstraint(Sketcher.Constraint("Equal", 8, 9))
sketch6.addConstraint(Sketcher.Constraint("Equal", 9, 10))
sketch6.addConstraint(Sketcher.Constraint("Equal", 10, 11))
sketch6.addConstraint(Sketcher.Constraint("Symmetric", 5, 3, 6, 3, -1, 1))
sketch6.addConstraint(Sketcher.Constraint("Symmetric", 4, 3, 7, 3, -1, 1))
sketch6.addConstraint(Sketcher.Constraint("Symmetric", 0, 3, 8, 3, -1, 1))
sketch6.addConstraint(Sketcher.Constraint("Symmetric", 1, 3, 9, 3, -1, 1))
sketch6.addConstraint(Sketcher.Constraint("Symmetric", 2, 3, 10, 3, -1, 1))
sketch6.addConstraint(Sketcher.Constraint("Symmetric", 3, 3, 11, 3, -1, 1))
sketch6.addConstraint(Sketcher.Constraint("Symmetric", 0, 3, 2, 3, -2))
sketch6.addConstraint(Sketcher.Constraint("Symmetric", 3, 3, 4, 3, -2))
sketch6.addConstraint(Sketcher.Constraint("PointOnObject", 1, 3, -2))
sketch6.addConstraint(Sketcher.Constraint("PointOnObject", 5, 3, -1))
sketch6.addConstraint(Sketcher.Constraint("Horizontal", 0, 3, 1, 3))
sketch6.addConstraint(Sketcher.Constraint("Vertical", 4, 3, 5, 3))
sketch6.addConstraint(Sketcher.Constraint("Diameter", 0, Q("0.8 mm")))
sketch6.addConstraint(Sketcher.Constraint("DistanceX", 4, 3, 3, 3, Q("45.5 mm")))
sketch6.addConstraint(Sketcher.Constraint("DistanceY", 8, 3, 2, 3, Q("42.7 mm")))
sketch6.addConstraint(Sketcher.Constraint("DistanceX", 0, 3, 2, 3, Q("22.35 mm")))
sketch6.addConstraint(Sketcher.Constraint("DistanceY", 7, 3, 3, 3, Q("22.35 mm")))
sketch6.setExpression("Constraints[23]", "Params.sketch6_diameter")
pad5 = body.newObject("PartDesign::Pad", "Pad004")
pad5.Profile = sketch6
pad5.setExpression("Length", "Params.pad5_length")

doc.recompute()
